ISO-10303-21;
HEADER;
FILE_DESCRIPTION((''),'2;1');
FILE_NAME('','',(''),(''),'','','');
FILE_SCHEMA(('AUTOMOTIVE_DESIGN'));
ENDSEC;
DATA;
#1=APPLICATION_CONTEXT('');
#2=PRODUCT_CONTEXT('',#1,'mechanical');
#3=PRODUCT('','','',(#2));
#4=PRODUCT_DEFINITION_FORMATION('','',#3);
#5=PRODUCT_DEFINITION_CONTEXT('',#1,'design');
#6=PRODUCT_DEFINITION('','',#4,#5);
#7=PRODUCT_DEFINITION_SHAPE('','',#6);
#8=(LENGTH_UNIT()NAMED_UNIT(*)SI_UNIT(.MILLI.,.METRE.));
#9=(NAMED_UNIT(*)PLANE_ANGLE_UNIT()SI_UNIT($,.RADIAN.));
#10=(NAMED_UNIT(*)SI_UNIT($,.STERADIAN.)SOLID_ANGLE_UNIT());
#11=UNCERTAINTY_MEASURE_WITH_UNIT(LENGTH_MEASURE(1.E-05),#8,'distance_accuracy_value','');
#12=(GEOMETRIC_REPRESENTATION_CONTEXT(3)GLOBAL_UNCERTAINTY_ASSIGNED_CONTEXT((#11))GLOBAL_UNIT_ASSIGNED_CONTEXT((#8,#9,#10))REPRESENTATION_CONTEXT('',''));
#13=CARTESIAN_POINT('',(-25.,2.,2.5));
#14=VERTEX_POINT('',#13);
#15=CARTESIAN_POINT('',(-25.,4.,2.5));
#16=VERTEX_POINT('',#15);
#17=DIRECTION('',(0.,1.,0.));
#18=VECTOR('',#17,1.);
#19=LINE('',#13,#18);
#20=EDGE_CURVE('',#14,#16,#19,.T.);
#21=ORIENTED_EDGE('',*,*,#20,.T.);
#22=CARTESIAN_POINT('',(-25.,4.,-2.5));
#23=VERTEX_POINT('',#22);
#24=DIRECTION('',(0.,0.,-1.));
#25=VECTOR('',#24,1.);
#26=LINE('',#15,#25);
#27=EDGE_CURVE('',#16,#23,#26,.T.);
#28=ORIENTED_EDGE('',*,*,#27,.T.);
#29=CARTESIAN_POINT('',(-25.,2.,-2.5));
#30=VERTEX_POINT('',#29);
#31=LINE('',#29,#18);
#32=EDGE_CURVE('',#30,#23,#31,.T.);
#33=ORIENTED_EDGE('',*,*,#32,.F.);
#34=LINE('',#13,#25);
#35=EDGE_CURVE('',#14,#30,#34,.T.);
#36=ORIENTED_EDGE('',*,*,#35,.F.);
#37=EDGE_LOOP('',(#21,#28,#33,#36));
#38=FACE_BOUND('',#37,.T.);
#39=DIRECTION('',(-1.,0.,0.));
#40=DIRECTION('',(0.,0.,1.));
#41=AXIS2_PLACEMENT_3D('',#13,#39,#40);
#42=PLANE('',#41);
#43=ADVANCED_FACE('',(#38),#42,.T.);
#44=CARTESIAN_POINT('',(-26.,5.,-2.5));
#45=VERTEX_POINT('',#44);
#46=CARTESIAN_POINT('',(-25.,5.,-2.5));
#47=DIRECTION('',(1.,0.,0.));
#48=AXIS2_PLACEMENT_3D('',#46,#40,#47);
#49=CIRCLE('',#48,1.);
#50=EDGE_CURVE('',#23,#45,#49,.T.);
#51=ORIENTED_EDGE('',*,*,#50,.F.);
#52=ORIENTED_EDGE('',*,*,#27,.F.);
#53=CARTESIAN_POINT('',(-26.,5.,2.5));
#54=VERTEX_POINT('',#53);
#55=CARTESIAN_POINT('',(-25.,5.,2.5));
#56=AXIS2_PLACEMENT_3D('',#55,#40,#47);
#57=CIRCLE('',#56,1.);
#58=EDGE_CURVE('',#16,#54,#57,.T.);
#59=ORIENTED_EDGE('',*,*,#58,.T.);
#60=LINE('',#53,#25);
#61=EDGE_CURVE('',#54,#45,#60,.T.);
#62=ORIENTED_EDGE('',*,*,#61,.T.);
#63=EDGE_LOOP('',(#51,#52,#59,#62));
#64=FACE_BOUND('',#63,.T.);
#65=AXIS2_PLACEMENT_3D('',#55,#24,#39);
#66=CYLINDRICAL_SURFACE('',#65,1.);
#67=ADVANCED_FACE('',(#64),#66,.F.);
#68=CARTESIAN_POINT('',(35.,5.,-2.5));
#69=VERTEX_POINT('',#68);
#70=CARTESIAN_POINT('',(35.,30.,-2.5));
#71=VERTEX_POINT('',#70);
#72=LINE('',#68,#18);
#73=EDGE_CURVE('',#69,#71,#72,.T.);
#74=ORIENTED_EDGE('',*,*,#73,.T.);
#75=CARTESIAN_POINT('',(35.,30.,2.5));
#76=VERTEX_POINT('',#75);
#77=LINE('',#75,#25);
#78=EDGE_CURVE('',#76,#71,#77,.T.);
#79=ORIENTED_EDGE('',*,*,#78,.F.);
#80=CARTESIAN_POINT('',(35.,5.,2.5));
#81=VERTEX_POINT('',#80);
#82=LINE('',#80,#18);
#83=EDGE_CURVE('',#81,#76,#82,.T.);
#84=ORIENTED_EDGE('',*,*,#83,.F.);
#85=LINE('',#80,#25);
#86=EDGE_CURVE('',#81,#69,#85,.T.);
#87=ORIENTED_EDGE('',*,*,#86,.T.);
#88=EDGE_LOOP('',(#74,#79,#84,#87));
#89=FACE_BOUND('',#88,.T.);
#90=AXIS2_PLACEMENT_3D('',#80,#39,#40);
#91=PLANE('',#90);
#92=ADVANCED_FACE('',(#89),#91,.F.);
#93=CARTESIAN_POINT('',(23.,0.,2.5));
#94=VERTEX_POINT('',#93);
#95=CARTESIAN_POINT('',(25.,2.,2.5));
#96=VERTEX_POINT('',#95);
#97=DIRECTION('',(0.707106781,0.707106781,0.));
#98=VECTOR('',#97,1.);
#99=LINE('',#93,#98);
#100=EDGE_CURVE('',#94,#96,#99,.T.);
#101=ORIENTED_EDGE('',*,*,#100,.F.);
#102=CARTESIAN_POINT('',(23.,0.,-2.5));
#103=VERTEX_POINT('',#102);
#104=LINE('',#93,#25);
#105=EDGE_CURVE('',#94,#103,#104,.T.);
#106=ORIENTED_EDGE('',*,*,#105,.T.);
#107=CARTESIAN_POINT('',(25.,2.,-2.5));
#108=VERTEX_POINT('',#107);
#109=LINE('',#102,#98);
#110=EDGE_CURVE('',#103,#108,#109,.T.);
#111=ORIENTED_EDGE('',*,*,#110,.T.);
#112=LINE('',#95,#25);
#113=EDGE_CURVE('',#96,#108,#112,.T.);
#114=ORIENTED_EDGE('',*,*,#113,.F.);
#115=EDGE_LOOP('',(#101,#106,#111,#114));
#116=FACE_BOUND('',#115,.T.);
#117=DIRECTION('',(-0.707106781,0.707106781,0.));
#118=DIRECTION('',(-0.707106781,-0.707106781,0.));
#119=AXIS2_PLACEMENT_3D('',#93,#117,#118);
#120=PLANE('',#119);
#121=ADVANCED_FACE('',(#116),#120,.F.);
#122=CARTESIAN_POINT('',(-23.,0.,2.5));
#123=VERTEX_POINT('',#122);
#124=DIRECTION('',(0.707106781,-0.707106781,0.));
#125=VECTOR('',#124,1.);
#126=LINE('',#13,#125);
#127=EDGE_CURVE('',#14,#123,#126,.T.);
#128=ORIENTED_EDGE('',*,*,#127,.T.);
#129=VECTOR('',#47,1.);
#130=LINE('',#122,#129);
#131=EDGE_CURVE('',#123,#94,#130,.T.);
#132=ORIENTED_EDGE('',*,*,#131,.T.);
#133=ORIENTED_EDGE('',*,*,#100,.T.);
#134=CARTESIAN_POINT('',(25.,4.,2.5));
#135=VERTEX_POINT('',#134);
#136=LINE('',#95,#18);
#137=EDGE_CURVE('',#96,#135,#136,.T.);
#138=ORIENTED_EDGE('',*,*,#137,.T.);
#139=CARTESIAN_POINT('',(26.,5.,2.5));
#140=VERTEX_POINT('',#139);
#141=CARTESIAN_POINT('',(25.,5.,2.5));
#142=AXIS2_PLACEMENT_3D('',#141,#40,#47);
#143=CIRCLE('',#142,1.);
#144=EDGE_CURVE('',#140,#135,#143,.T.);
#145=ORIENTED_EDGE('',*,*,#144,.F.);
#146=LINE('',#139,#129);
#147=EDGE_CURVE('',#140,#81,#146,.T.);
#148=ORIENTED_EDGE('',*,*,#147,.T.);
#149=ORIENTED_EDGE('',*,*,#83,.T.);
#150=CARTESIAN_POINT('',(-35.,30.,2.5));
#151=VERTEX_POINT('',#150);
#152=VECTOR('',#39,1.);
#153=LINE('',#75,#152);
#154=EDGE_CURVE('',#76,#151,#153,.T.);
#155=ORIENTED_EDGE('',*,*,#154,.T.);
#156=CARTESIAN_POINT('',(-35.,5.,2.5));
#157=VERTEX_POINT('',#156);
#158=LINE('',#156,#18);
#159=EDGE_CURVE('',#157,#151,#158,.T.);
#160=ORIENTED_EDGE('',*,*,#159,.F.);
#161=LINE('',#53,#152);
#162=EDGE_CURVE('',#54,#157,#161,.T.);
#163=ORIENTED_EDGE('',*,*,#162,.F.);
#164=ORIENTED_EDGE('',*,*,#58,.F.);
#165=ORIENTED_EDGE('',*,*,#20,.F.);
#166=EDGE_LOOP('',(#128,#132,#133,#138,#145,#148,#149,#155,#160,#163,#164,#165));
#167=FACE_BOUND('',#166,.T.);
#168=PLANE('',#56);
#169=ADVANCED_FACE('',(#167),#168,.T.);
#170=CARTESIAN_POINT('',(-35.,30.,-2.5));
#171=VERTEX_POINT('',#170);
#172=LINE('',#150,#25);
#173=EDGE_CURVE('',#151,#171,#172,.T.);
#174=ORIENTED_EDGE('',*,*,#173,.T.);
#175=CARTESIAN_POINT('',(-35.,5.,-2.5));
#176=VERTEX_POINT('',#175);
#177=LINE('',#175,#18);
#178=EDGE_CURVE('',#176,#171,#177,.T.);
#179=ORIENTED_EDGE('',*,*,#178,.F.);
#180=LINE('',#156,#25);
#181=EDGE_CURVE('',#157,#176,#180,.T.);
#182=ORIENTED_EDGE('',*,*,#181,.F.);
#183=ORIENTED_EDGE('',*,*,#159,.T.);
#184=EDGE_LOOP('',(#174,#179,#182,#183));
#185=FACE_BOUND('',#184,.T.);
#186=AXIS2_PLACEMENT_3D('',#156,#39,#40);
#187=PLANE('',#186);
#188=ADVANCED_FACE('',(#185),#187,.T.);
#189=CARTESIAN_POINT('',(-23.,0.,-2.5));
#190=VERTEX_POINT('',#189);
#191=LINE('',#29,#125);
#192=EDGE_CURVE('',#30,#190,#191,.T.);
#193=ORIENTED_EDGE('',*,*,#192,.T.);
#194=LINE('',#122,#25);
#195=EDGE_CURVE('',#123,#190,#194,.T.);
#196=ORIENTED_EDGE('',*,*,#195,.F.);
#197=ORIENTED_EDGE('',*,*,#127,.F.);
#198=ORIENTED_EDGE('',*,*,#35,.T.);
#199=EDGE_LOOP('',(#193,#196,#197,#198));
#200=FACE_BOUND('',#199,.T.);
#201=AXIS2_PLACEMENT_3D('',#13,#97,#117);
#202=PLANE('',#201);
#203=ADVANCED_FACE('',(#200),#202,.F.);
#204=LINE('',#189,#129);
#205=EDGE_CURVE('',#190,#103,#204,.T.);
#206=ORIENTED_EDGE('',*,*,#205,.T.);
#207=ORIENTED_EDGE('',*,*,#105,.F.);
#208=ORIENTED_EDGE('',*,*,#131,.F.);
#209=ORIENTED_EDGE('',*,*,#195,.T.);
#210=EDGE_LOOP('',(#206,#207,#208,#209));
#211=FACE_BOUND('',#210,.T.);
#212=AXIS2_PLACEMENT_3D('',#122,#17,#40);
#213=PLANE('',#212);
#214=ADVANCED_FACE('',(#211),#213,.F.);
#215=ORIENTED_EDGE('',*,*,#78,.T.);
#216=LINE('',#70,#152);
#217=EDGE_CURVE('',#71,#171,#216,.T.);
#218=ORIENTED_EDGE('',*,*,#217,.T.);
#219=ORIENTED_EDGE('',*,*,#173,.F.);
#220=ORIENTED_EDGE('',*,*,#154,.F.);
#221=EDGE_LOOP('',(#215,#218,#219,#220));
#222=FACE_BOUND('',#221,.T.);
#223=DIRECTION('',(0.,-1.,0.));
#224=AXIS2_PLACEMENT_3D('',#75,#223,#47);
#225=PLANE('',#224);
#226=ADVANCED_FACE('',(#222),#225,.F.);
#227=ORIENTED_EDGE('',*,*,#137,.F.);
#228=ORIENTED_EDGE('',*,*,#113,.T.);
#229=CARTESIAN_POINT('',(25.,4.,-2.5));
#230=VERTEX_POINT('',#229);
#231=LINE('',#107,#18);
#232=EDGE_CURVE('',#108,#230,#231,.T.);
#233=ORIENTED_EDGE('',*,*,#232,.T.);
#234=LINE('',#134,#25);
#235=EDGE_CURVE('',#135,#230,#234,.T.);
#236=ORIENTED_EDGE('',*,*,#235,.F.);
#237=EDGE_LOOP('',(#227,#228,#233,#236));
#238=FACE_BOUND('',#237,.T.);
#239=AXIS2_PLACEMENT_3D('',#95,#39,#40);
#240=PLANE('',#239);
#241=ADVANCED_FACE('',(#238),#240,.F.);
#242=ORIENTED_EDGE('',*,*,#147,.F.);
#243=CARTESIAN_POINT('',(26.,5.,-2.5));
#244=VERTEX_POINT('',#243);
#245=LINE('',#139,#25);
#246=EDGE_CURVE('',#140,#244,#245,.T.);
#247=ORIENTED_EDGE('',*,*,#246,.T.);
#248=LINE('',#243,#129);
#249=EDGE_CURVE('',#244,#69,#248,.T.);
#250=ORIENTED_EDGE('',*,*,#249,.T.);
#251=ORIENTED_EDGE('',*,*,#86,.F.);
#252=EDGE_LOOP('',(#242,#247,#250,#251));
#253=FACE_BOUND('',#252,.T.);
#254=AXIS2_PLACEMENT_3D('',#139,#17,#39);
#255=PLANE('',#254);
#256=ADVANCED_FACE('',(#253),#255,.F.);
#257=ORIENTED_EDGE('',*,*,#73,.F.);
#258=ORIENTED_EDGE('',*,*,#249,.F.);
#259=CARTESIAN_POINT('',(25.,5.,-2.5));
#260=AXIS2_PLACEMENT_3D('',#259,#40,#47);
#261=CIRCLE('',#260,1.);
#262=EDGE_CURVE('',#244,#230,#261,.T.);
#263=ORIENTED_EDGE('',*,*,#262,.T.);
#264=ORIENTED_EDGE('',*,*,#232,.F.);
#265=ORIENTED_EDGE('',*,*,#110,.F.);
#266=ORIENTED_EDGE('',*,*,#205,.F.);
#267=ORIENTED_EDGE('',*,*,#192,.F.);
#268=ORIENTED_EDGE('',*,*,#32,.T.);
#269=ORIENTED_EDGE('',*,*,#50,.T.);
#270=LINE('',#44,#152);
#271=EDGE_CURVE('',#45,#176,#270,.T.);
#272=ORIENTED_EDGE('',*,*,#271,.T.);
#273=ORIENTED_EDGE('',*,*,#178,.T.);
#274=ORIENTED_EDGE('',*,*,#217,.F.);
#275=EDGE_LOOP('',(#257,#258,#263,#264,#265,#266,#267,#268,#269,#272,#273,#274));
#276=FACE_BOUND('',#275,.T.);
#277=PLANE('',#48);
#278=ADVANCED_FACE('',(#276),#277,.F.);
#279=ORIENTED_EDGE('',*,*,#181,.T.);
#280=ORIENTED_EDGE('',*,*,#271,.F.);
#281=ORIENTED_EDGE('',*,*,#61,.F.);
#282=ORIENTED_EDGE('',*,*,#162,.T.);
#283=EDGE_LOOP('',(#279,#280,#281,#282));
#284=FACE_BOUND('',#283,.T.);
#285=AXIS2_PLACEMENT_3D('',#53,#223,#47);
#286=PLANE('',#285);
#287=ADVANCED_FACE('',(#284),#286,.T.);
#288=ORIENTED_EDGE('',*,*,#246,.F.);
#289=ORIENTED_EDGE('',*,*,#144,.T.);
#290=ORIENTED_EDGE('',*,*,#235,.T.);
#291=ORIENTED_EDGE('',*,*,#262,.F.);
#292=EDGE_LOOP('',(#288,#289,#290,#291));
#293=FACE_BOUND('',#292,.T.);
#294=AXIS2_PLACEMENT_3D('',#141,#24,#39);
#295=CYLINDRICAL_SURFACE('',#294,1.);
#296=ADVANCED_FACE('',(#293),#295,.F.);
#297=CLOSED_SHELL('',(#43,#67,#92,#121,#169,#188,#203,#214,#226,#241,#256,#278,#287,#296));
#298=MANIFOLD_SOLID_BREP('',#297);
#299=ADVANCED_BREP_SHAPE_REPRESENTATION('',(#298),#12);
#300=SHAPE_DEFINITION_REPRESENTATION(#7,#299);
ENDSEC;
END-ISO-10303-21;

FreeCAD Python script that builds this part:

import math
import FreeCAD as App
import Part
import Sketcher
Q = App.Units.Quantity

doc = App.newDocument("Part")
body = doc.addObject("PartDesign::Body", "Body")

# Sketch on XY plane
sketch1 = body.newObject("Sketcher::SketchObject", "Sketch")
sketch1.AttachmentSupport = (doc.getObject("XY_Plane"), [""])
sketch1.MapMode = "FlatFace"
sketch1.addGeometry([
    Part.LineSegment(App.Vector(-25, 2, 0), App.Vector(-23, 0, 0)),  # 0
    Part.LineSegment(App.Vector(-23, 0, 0), App.Vector(23, 0, 0)),  # 1
    Part.LineSegment(App.Vector(23, 0, 0), App.Vector(25, 2, 0)),  # 2
    Part.LineSegment(App.Vector(25, 2, 0), App.Vector(25, 4, 0)),  # 3
    Part.ArcOfCircle(Part.Circle(App.Vector(25, 5, 0), App.Vector(0, 0, 1), 1), math.radians(0), math.radians(270)),  # 4
    Part.LineSegment(App.Vector(26, 5, 0), App.Vector(35, 5, 0)),  # 5
    Part.LineSegment(App.Vector(35, 5, 0), App.Vector(35, 30, 0)),  # 6
    Part.LineSegment(App.Vector(35, 30, 0), App.Vector(-35, 30, 0)),  # 7
    Part.LineSegment(App.Vector(-35, 30, 0), App.Vector(-35, 5, 0)),  # 8
    Part.LineSegment(App.Vector(-35, 5, 0), App.Vector(-26, 5, 0)),  # 9
    Part.ArcOfCircle(Part.Circle(App.Vector(-25, 5, 0), App.Vector(0, 0, 1), 1), math.radians(-90), math.radians(180)),  # 10
    Part.LineSegment(App.Vector(-25, 4, 0), App.Vector(-25, 2, 0)),  # 11
], False)
sketch1.addConstraint([
    Sketcher.Constraint("Coincident", 0, 2, 1, 1),
    Sketcher.Constraint("Coincident", 1, 2, 2, 1),
    Sketcher.Constraint("Coincident", 2, 2, 3, 1),
    Sketcher.Constraint("Coincident", 3, 2, 4, 2),
    Sketcher.Constraint("Coincident", 4, 1, 5, 1),
    Sketcher.Constraint("Coincident", 5, 2, 6, 1),
    Sketcher.Constraint("Coincident", 6, 2, 7, 1),
    Sketcher.Constraint("Coincident", 7, 2, 8, 1),
    Sketcher.Constraint("Coincident", 8, 2, 9, 1),
    Sketcher.Constraint("Coincident", 9, 2, 10, 2),
    Sketcher.Constraint("Coincident", 10, 1, 11, 1),
    Sketcher.Constraint("Coincident", 11, 2, 0, 1),
    Sketcher.Constraint("Horizontal", 1),
    Sketcher.Constraint("Vertical", 3),
    Sketcher.Constraint("Horizontal", 5),
    Sketcher.Constraint("Vertical", 6),
    Sketcher.Constraint("Horizontal", 7),
    Sketcher.Constraint("Vertical", 8),
    Sketcher.Constraint("Horizontal", 9),
    Sketcher.Constraint("Vertical", 11),
    Sketcher.Constraint("Equal", 4, 10),
    Sketcher.Constraint("Symmetric", 0, 2, 1, 2, -1, 1),
    Sketcher.Constraint("Symmetric", 4, 3, 10, 3, -2),
    Sketcher.Constraint("Symmetric", 5, 2, 8, 2, -2),
    Sketcher.Constraint("Symmetric", 2, 2, 11, 2, -2),
    Sketcher.Constraint("Perpendicular", 0, 2),
    Sketcher.Constraint("Horizontal", 10, 3, 4, 1),
    Sketcher.Constraint("Vertical", 4, 3, 2, 2),
    Sketcher.Constraint("Radius", 4, Q("1 mm")),
    Sketcher.Constraint("DistanceX", 1, 1, 1, 2, Q("46 mm")),
    Sketcher.Constraint("DistanceX", 5, 1, 5, 2, Q("9 mm")),
    Sketcher.Constraint("DistanceX", 7, 2, 7, 1, Q("70 mm")),
    Sketcher.Constraint("DistanceY", 3, 1, 3, 2, Q("2 mm")),
    Sketcher.Constraint("DistanceY", 6, 1, 6, 2, Q("25 mm")),
])
pad1 = body.newObject("PartDesign::Pad", "Pad")
pad1.Profile = sketch1
pad1.Length = 5
pad1.Midplane = True

doc.recompute()
